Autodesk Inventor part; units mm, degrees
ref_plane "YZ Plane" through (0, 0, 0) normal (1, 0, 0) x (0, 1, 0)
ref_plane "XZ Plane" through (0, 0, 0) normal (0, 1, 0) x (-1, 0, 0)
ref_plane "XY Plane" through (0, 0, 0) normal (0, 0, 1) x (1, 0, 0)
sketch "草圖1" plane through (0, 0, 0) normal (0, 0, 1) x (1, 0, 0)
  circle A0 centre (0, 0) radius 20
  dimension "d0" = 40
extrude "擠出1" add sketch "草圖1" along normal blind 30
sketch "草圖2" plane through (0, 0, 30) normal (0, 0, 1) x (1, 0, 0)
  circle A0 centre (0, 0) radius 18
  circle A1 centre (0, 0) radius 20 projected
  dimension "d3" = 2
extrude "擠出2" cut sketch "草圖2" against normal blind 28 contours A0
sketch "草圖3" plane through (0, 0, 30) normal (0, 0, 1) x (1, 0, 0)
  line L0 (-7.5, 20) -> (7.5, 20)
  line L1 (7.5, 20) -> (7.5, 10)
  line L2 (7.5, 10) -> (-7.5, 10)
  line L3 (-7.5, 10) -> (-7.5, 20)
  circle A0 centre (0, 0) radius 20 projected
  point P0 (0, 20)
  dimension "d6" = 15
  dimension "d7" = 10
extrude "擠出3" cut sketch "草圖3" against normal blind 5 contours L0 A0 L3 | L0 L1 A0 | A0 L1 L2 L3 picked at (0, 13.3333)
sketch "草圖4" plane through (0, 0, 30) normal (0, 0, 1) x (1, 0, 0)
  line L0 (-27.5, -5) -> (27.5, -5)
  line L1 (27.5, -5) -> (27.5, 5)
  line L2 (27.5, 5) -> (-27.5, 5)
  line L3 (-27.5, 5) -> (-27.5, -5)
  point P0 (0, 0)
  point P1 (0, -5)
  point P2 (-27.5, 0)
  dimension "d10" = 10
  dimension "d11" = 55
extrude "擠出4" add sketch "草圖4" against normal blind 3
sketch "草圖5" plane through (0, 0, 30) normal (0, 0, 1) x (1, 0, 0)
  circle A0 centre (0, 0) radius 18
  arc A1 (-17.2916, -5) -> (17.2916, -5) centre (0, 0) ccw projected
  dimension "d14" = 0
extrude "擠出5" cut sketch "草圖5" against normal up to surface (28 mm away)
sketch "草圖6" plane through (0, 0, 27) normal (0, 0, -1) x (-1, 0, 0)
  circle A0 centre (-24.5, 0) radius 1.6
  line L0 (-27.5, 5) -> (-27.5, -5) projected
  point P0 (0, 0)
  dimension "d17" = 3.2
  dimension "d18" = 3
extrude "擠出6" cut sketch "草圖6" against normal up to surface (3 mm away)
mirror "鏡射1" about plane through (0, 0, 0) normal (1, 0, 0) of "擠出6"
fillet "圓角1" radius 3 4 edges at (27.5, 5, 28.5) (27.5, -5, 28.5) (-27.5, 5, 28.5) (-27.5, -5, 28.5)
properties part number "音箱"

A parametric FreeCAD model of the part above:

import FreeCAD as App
import Part
import Sketcher
Q = App.Units.Quantity


def edges_at(feature, points):
    """Names of the edges that pass closest to the given points."""
    edges = feature.Shape.Edges
    near = lambda p: min(range(len(edges)), key=lambda i: edges[i].distToShape(Part.Vertex(*p))[0])
    return sorted({f"Edge{near(p) + 1}" for p in points})

doc = App.newDocument("Part")
params = doc.addObject("Spreadsheet::Sheet", "Params")
for row, (alias, value) in enumerate([
    ("sketch1_diameter", "40 mm"),
    ("pad1_length", "30 mm"),
    ("sketch2_diameter", "36 mm"),
    ("pocket1_length", "28 mm"),
    ("sketch3_width", "15 mm"),
    ("sketch3_height", "10 mm"),
    ("pocket2_length", "5 mm"),
    ("sketch4_width", "55 mm"),
    ("sketch4_height", "10 mm"),
    ("pad2_length", "3 mm"),
    ("sketch5_diameter", "36 mm"),
    ("pocket3_length", "28 mm"),
    ("sketch6_diameter", "3.2 mm"),
    ("pocket4_length", "3 mm"),
    ("fillet_radius", "3 mm"),
], start=1):
    params.set(f"A{row}", alias)
    params.set(f"B{row}", "=" + value)
    params.setAlias(f"B{row}", alias)

body = doc.addObject("PartDesign::Body", "Body")

# Sketch on XY plane
sketch1 = doc.addObject("Sketcher::SketchObject", "Sketch")
body.addObject(sketch1)
sketch1.AttachmentSupport = (doc.XY_Plane, [""])
sketch1.MapMode = "FlatFace"
sketch1.addGeometry(Part.Circle(App.Vector(0, 0, 0), App.Vector(0, 0, 1), 20), False)
sketch1.addConstraint([
    Sketcher.Constraint("Coincident", 0, 3, -1, 1),
    Sketcher.Constraint("Diameter", 0, Q("40 mm")),
])
sketch1.setExpression("Constraints[1]", "Params.sketch1_diameter")
pad1 = doc.addObject("PartDesign::Pad", "Pad")
body.addObject(pad1)
pad1.Profile = sketch1
pad1.setExpression("Length", "Params.pad1_length")

# Sketch on XY plane
sketch2 = doc.addObject("Sketcher::SketchObject", "Sketch001")
body.addObject(sketch2)
sketch2.AttachmentSupport = (doc.XY_Plane, [""])
sketch2.MapMode = "FlatFace"
sketch2.AttachmentOffset = App.Placement(App.Vector(0, 0, 30), App.Rotation())
sketch2.addGeometry(Part.Circle(App.Vector(0, 0, 0), App.Vector(0, 0, 1), 18), False)
sketch2.addConstraint([
    Sketcher.Constraint("Coincident", 0, 3, -1, 1),
    Sketcher.Constraint("Diameter", 0, Q("36 mm")),
])
sketch2.setExpression("Constraints[1]", "Params.sketch2_diameter")
pocket1 = doc.addObject("PartDesign::Pocket", "Pocket")
body.addObject(pocket1)
pocket1.Profile = sketch2
pocket1.setExpression("Length", "Params.pocket1_length")

# Sketch on XY plane
sketch3 = doc.addObject("Sketcher::SketchObject", "Sketch002")
body.addObject(sketch3)
sketch3.AttachmentSupport = (doc.XY_Plane, [""])
sketch3.MapMode = "FlatFace"
sketch3.AttachmentOffset = App.Placement(App.Vector(0, 0, 30), App.Rotation())
sketch3.addGeometry([
    Part.LineSegment(App.Vector(-8, 20, 0), App.Vector(-8, 10, 0)),
    Part.LineSegment(App.Vector(-8, 10, 0), App.Vector(8, 10, 0)),
    Part.LineSegment(App.Vector(8, 10, 0), App.Vector(8, 20, 0)),
    Part.LineSegment(App.Vector(8, 20, 0), App.Vector(-8, 20, 0)),
], False)
sketch3.addConstraint([
    Sketcher.Constraint("Coincident", 0, 2, 1, 1),
    Sketcher.Constraint("Coincident", 1, 2, 2, 1),
    Sketcher.Constraint("Coincident", 2, 2, 3, 1),
    Sketcher.Constraint("Coincident", 3, 2, 0, 1),
    Sketcher.Constraint("Vertical", 0),
    Sketcher.Constraint("Horizontal", 1),
    Sketcher.Constraint("Vertical", 2),
    Sketcher.Constraint("Horizontal", 3),
    Sketcher.Constraint("DistanceX", 1, 1, 1, 2, Q("15 mm")),
    Sketcher.Constraint("DistanceY", 0, 2, 0, 1, Q("10 mm")),
    Sketcher.Constraint("DistanceY", -1, 1, 0, 2, Q("10 mm")),
    Sketcher.Constraint("DistanceX", 0, 2, -1, 1, Q("7.5 mm")),
])
sketch3.setExpression("Constraints[8]", "Params.sketch3_width")
sketch3.setExpression("Constraints[9]", "Params.sketch3_height")
pocket2 = doc.addObject("PartDesign::Pocket", "Pocket001")
body.addObject(pocket2)
pocket2.Profile = sketch3
pocket2.setExpression("Length", "Params.pocket2_length")

# Sketch on XY plane
sketch4 = doc.addObject("Sketcher::SketchObject", "Sketch003")
body.addObject(sketch4)
sketch4.AttachmentSupport = (doc.XY_Plane, [""])
sketch4.MapMode = "FlatFace"
sketch4.AttachmentOffset = App.Placement(App.Vector(0, 0, 30), App.Rotation())
sketch4.addGeometry([
    Part.LineSegment(App.Vector(-28, 5, 0), App.Vector(-28, -5, 0)),
    Part.LineSegment(App.Vector(-28, -5, 0), App.Vector(28, -5, 0)),
    Part.LineSegment(App.Vector(28, -5, 0), App.Vector(28, 5, 0)),
    Part.LineSegment(App.Vector(28, 5, 0), App.Vector(-28, 5, 0)),
], False)
sketch4.addConstraint([
    Sketcher.Constraint("Coincident", 0, 2, 1, 1),
    Sketcher.Constraint("Coincident", 1, 2, 2, 1),
    Sketcher.Constraint("Coincident", 2, 2, 3, 1),
    Sketcher.Constraint("Coincident", 3, 2, 0, 1),
    Sketcher.Constraint("Vertical", 0),
    Sketcher.Constraint("Horizontal", 1),
    Sketcher.Constraint("Vertical", 2),
    Sketcher.Constraint("Horizontal", 3),
    Sketcher.Constraint("Symmetric", 0, 2, 2, 2, -1, 1),
    Sketcher.Constraint("DistanceX", 1, 1, 1, 2, Q("55 mm")),
    Sketcher.Constraint("DistanceY", 0, 2, 0, 1, Q("10 mm")),
])
sketch4.setExpression("Constraints[9]", "Params.sketch4_width")
sketch4.setExpression("Constraints[10]", "Params.sketch4_height")
pad2 = doc.addObject("PartDesign::Pad", "Pad001")
body.addObject(pad2)
pad2.Profile = sketch4
pad2.setExpression("Length", "Params.pad2_length")
pad2.Reversed = True

# Sketch on XY plane
sketch5 = doc.addObject("Sketcher::SketchObject", "Sketch004")
body.addObject(sketch5)
sketch5.AttachmentSupport = (doc.XY_Plane, [""])
sketch5.MapMode = "FlatFace"
sketch5.AttachmentOffset = App.Placement(App.Vector(0, 0, 30), App.Rotation())
sketch5.addGeometry(Part.Circle(App.Vector(0, 0, 0), App.Vector(0, 0, 1), 18), False)
sketch5.addConstraint([
    Sketcher.Constraint("Coincident", 0, 3, -1, 1),
    Sketcher.Constraint("Diameter", 0, Q("36 mm")),
])
sketch5.setExpression("Constraints[1]", "Params.sketch5_diameter")
pocket3 = doc.addObject("PartDesign::Pocket", "Pocket002")
body.addObject(pocket3)
pocket3.Profile = sketch5
pocket3.setExpression("Length", "Params.pocket3_length")

# Sketch on XY plane
sketch6 = doc.addObject("Sketcher::SketchObject", "Sketch005")
body.addObject(sketch6)
sketch6.AttachmentSupport = (doc.XY_Plane, [""])
sketch6.MapMode = "FlatFace"
sketch6.AttachmentOffset = App.Placement(App.Vector(0, 0, 27), App.Rotation())
sketch6.addGeometry(Part.Circle(App.Vector(24.5, 0, 0), App.Vector(0, 0, 1), 1.6), False)
sketch6.addConstraint([
    Sketcher.Constraint("PointOnObject", 0, 3, -1),
    Sketcher.Constraint("Diameter", 0, Q("3.2 mm")),
    Sketcher.Constraint("DistanceX", -1, 1, 0, 3, Q("24.5 mm")),
])
sketch6.setExpression("Constraints[1]", "Params.sketch6_diameter")
pocket4 = doc.addObject("PartDesign::Pocket", "Pocket003")
body.addObject(pocket4)
pocket4.Profile = sketch6
pocket4.setExpression("Length", "Params.pocket4_length")
pocket4.Reversed = True
doc.recompute()

mirrored = doc.addObject("PartDesign::Mirrored", "Mirrored")
body.addObject(mirrored)
mirrored.Originals = [pocket4]
mirrored.MirrorPlane = (doc.YZ_Plane, [""])
body.Tip = mirrored
doc.recompute()

fillet = doc.addObject("PartDesign::Fillet", "Fillet")
body.addObject(fillet)
fillet.Base = (mirrored, edges_at(mirrored, [
    (27.5, 5, 28.5),
    (27.5, -5, 28.5),
    (-27.5, 5, 28.5),
    (-27.5, -5, 28.5),
]))
fillet.setExpression("Radius", "Params.fillet_radius")

doc.recompute()
